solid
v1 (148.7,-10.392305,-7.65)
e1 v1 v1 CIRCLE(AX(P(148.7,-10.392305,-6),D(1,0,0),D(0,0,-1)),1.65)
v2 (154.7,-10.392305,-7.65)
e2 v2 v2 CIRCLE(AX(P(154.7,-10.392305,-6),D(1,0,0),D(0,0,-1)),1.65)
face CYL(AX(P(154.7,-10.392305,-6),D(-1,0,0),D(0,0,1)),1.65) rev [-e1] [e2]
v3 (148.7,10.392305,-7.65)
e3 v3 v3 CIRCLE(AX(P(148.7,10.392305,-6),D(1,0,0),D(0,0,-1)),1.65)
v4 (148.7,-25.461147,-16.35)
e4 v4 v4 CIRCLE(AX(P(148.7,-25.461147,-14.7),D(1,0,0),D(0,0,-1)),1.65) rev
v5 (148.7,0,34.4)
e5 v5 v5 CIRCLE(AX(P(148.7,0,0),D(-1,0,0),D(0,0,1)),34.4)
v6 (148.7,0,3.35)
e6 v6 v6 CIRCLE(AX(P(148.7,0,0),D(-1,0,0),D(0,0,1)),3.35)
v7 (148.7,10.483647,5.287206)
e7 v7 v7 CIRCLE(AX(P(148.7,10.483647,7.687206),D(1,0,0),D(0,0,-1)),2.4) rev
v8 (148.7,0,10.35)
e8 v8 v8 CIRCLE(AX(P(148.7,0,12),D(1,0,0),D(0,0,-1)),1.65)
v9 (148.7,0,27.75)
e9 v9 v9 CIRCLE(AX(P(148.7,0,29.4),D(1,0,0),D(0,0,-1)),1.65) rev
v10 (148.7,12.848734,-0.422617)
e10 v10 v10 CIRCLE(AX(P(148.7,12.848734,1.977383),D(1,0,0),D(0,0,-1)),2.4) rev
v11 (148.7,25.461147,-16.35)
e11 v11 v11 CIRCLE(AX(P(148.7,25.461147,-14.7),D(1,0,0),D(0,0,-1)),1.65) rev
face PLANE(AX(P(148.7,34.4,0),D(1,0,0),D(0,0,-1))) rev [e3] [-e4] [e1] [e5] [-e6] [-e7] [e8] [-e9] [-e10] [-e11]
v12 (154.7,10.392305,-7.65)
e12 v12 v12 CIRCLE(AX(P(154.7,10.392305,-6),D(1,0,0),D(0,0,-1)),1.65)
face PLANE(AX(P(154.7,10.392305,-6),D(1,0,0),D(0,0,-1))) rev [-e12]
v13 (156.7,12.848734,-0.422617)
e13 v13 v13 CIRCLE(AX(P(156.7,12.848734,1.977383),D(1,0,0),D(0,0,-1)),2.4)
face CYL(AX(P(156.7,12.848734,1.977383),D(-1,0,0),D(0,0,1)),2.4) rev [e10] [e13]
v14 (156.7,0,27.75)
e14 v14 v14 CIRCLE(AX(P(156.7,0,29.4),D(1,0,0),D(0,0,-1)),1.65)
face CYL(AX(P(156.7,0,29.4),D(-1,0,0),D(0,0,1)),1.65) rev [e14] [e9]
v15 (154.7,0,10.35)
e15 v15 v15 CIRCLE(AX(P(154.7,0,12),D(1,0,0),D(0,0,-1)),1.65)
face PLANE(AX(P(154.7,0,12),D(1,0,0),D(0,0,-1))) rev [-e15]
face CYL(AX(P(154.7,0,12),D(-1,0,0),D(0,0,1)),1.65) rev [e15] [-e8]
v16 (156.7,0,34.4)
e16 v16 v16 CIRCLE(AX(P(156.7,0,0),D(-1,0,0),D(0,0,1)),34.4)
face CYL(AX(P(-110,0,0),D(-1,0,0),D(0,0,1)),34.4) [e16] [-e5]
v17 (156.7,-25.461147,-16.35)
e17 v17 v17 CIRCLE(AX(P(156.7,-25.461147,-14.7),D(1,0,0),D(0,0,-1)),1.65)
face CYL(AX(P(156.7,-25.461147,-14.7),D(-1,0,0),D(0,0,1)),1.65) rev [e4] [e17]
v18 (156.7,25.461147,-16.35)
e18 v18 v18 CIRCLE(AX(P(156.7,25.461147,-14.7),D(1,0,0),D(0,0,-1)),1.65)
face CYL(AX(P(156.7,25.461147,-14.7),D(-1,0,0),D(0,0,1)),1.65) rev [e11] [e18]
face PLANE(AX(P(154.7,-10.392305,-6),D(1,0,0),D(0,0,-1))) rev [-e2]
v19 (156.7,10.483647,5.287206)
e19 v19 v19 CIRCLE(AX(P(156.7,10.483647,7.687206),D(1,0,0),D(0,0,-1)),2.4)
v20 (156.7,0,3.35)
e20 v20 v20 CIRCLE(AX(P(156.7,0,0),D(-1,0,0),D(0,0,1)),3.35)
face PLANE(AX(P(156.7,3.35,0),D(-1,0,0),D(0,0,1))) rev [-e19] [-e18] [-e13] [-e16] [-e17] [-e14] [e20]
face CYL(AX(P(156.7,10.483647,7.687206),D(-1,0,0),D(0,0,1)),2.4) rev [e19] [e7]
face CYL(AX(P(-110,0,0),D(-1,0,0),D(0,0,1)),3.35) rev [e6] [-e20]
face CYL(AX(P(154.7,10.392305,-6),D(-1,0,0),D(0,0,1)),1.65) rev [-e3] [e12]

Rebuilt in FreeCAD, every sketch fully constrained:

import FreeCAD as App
import Part
import Sketcher

V = App.Vector


def add_polygon(sketch, points):
    """Adds a closed chain of lines whose ends are joined by coincident constraints."""
    first, n = sketch.GeometryCount, len(points)
    for a, b in zip(points, points[1:] + points[:1]):
        sketch.addGeometry(Part.LineSegment(App.Vector(*a, 0), App.Vector(*b, 0)), False)
    for i in range(n):
        sketch.addConstraint(Sketcher.Constraint("Coincident", first + i, 2, first + (i + 1) % n, 1))

doc = App.newDocument("Part")
body = doc.addObject("PartDesign::Body", "Body")

sketch1 = body.newObject("Sketcher::SketchObject", "Sketch")
sketch1.AttachmentSupport = (doc.getObject("XY_Plane"), [""])
sketch1.MapMode = "FlatFace"
add_polygon(sketch1, [(149, 34), (149, 3), (157, 3), (157, 34)])
sketch1.addConstraint(Sketcher.Constraint("Vertical", 0))
sketch1.addConstraint(Sketcher.Constraint("Horizontal", 1))
sketch1.addConstraint(Sketcher.Constraint("Vertical", 2))
sketch1.addConstraint(Sketcher.Constraint("Horizontal", 3))
sketch1.addConstraint(Sketcher.Constraint("DistanceX", 1, 1, 1, 2, 8.0))
sketch1.addConstraint(Sketcher.Constraint("DistanceY", 0, 2, 0, 1, 31.05))
sketch1.addConstraint(Sketcher.Constraint("DistanceX", -1, 1, 0, 2, 148.7))
sketch1.addConstraint(Sketcher.Constraint("DistanceY", -1, 1, 2, 2, 34.4))
revolution = body.newObject("PartDesign::Revolution", "Revolution")
revolution.Profile = sketch1
revolution.ReferenceAxis = (sketch1, ["H_Axis"])
revolution.Angle = 360

sketch2 = body.newObject("Sketcher::SketchObject", "Sketch001")
sketch2.AttachmentSupport = (doc.getObject("YZ_Plane"), [""])
sketch2.MapMode = "FlatFace"
sketch2.addGeometry(Part.Circle(V(12.8, 2, 0), V(0, 0, 1), 2.4), False)
sketch2.addGeometry(Part.Circle(V(10.5, 7.7, 0), V(0, 0, 1), 2.4), False)
sketch2.addGeometry(Part.Circle(V(0, 29.4, 0), V(0, 0, 1), 1.6), False)
sketch2.addGeometry(Part.Circle(V(-25.5, -14.7, 0), V(0, 0, 1), 1.6), False)
sketch2.addGeometry(Part.Circle(V(25.5, -14.7, 0), V(0, 0, 1), 1.6), False)
sketch2.addConstraint(Sketcher.Constraint("Equal", 0, 1))
sketch2.addConstraint(Sketcher.Constraint("Equal", 2, 3))
sketch2.addConstraint(Sketcher.Constraint("Equal", 3, 4))
sketch2.addConstraint(Sketcher.Constraint("Symmetric", 3, 3, 4, 3, -2))
sketch2.addConstraint(Sketcher.Constraint("PointOnObject", 2, 3, -2))
sketch2.addConstraint(Sketcher.Constraint("Diameter", 0, 4.8))
sketch2.addConstraint(Sketcher.Constraint("Diameter", 2, 3.3))
sketch2.addConstraint(Sketcher.Constraint("DistanceY", -1, 1, 2, 3, 29.4))
sketch2.addConstraint(Sketcher.Constraint("DistanceY", 3, 3, -1, 1, 14.7))
sketch2.addConstraint(Sketcher.Constraint("DistanceX", 1, 3, 4, 3, 14.977499))
sketch2.addConstraint(Sketcher.Constraint("DistanceX", 3, 3, 0, 3, 38.309881))
sketch2.addConstraint(Sketcher.Constraint("DistanceX", -1, 1, 0, 3, 12.848734))
sketch2.addConstraint(Sketcher.Constraint("DistanceY", -1, 1, 0, 3, 1.977383))
sketch2.addConstraint(Sketcher.Constraint("DistanceY", -1, 1, 1, 3, 7.687206))
pocket1 = body.newObject("PartDesign::Pocket", "Pocket")
pocket1.Profile = sketch2
pocket1.Type = "ThroughAll"
pocket1.Midplane = True

sketch3 = body.newObject("Sketcher::SketchObject", "Sketch002")
sketch3.AttachmentSupport = (doc.getObject("YZ_Plane"), [""])
sketch3.MapMode = "FlatFace"
sketch3.AttachmentOffset = App.Placement(V(0, 0, 148.7), App.Rotation())
sketch3.addGeometry(Part.Circle(V(0, 12, 0), V(0, 0, 1), 1.6), False)
sketch3.addGeometry(Part.Circle(V(-10.4, -6, 0), V(0, 0, 1), 1.6), False)
sketch3.addGeometry(Part.Circle(V(10.4, -6, 0), V(0, 0, 1), 1.6), False)
sketch3.addConstraint(Sketcher.Constraint("Equal", 0, 1))
sketch3.addConstraint(Sketcher.Constraint("Equal", 1, 2))
sketch3.addConstraint(Sketcher.Constraint("Symmetric", 1, 3, 2, 3, -2))
sketch3.addConstraint(Sketcher.Constraint("PointOnObject", 0, 3, -2))
sketch3.addConstraint(Sketcher.Constraint("Diameter", 0, 3.3))
sketch3.addConstraint(Sketcher.Constraint("DistanceY", -1, 1, 0, 3, 12.0))
sketch3.addConstraint(Sketcher.Constraint("DistanceY", 1, 3, -1, 1, 6.0))
sketch3.addConstraint(Sketcher.Constraint("DistanceX", 1, 3, 2, 3, 20.78461))
pocket2 = body.newObject("PartDesign::Pocket", "Pocket001")
pocket2.Profile = sketch3
pocket2.Length = 6
pocket2.Reversed = True

doc.recompute()
